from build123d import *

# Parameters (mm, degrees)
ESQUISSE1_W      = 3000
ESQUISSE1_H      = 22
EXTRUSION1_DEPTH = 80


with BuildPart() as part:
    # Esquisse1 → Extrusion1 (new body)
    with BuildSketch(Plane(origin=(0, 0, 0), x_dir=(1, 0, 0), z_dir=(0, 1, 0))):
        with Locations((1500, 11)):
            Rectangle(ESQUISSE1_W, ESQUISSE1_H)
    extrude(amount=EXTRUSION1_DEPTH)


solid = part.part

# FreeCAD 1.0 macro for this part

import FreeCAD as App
import Part
import Sketcher

V = App.Vector
Q = App.Units.Quantity

doc = App.newDocument("Part")
params = doc.addObject("Spreadsheet::Sheet", "Params")
for row, (alias, value) in enumerate([
    ("sketch1_width", "3000 mm"),
    ("sketch1_height", "22 mm"),
    ("pad1_length", "80 mm"),
], start=1):
    params.set(f"A{row}", alias)
    params.set(f"B{row}", "=" + value)
    params.setAlias(f"B{row}", alias)

body = doc.addObject("PartDesign::Body", "Body")

sketch1 = body.newObject("Sketcher::SketchObject", "Sketch")
sketch1.AttachmentSupport = (doc.getObject("XZ_Plane"), [""])
sketch1.MapMode = "FlatFace"
sketch1.addGeometry([
    Part.LineSegment(V(0, -22, 0), V(0, 0, 0)),
    Part.LineSegment(V(0, 0, 0), V(3000, 0, 0)),
    Part.LineSegment(V(3000, 0, 0), V(3000, -22, 0)),
    Part.LineSegment(V(3000, -22, 0), V(0, -22, 0)),
], False)
sketch1.addConstraint([
    Sketcher.Constraint("Coincident", 0, 2, 1, 1),
    Sketcher.Constraint("Coincident", 1, 2, 2, 1),
    Sketcher.Constraint("Coincident", 2, 2, 3, 1),
    Sketcher.Constraint("Coincident", 3, 2, 0, 1),
    Sketcher.Constraint("Vertical", 0),
    Sketcher.Constraint("Horizontal", 1),
    Sketcher.Constraint("Vertical", 2),
    Sketcher.Constraint("Horizontal", 3),
    Sketcher.Constraint("Coincident", 0, 2, -1, 1),
    Sketcher.Constraint("DistanceX", 1, 1, 1, 2, Q("3000 mm")),
    Sketcher.Constraint("DistanceY", 0, 1, 0, 2, Q("22 mm")),
])
sketch1.setExpression("Constraints[9]", "Params.sketch1_width")
sketch1.setExpression("Constraints[10]", "Params.sketch1_height")
pad1 = body.newObject("PartDesign::Pad", "Pad")
pad1.Profile = sketch1
pad1.setExpression("Length", "Params.pad1_length")
pad1.Reversed = True

doc.recompute()
